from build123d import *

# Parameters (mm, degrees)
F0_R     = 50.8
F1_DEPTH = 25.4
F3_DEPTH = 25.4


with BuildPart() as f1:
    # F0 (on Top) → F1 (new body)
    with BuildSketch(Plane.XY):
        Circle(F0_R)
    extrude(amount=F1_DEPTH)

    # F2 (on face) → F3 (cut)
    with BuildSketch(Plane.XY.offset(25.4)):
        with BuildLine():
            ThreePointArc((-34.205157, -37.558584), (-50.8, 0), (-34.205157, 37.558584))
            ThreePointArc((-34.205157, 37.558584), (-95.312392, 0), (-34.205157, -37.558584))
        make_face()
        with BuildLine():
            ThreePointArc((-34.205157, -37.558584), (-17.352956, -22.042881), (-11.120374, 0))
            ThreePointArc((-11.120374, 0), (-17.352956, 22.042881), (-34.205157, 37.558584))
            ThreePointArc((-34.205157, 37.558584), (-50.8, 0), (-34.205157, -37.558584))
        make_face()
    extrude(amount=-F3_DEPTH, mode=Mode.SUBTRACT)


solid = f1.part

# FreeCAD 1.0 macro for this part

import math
import FreeCAD as App
import Part
import Sketcher
from FreeCAD import Vector
Q = App.Units.Quantity

doc = App.newDocument("Part")
body = doc.addObject("PartDesign::Body", "Body")

# Sketch on XY plane
sketch1 = body.newObject("Sketcher::SketchObject", "Sketch")
sketch1.AttachmentSupport = (doc.getObject("XY_Plane"), [""])
sketch1.MapMode = "FlatFace"
sketch1.addGeometry(Part.Circle(Vector(0, 0, 0), Vector(0, 0, 1), 51), False)
sketch1.addConstraint([
    Sketcher.Constraint("Coincident", 0, 3, -1, 1),
    Sketcher.Constraint("Diameter", 0, Q("4 in")),
])
pad1 = body.newObject("PartDesign::Pad", "Pad")
pad1.Profile = sketch1
pad1.Length = Q("1 in")

# Sketch on XY plane
sketch2 = body.newObject("Sketcher::SketchObject", "Sketch001")
sketch2.AttachmentSupport = (doc.getObject("XY_Plane"), [""])
sketch2.MapMode = "FlatFace"
sketch2.AttachmentOffset = App.Placement(Vector(0, 0, 1 * 25.4), App.Rotation())
sketch2.addGeometry([
    Part.ArcOfCircle(Part.Circle(Vector(-53, 0, 0), Vector(0, 0, 1), 42), math.radians(63), math.radians(297)),
    Part.ArcOfCircle(Part.Circle(Vector(-53, 0, 0), Vector(0, 0, 1), 42), math.radians(-63), math.radians(0)),
    Part.ArcOfCircle(Part.Circle(Vector(-53, 0, 0), Vector(0, 0, 1), 42), math.radians(0), math.radians(63)),
], False)
sketch2.addConstraint([
    Sketcher.Constraint("Tangent", 0, 2, 1, 1),
    Sketcher.Constraint("Tangent", 1, 2, 2, 1),
    Sketcher.Constraint("Tangent", 2, 2, 0, 1),
    Sketcher.Constraint("Symmetric", 0, 2, 2, 2, -1),
    Sketcher.Constraint("PointOnObject", 1, 2, -1),
    Sketcher.Constraint("Radius", 0, 42.096009),
    Sketcher.Constraint("DistanceX", 1, 3, -1, 1, 53.21638),
    Sketcher.Constraint("DistanceX", 0, 2, -1, 1, 34.205157),
])
pocket1 = body.newObject("PartDesign::Pocket", "Pocket")
pocket1.Profile = sketch2
pocket1.Length = Q("1 in")

doc.recompute()
